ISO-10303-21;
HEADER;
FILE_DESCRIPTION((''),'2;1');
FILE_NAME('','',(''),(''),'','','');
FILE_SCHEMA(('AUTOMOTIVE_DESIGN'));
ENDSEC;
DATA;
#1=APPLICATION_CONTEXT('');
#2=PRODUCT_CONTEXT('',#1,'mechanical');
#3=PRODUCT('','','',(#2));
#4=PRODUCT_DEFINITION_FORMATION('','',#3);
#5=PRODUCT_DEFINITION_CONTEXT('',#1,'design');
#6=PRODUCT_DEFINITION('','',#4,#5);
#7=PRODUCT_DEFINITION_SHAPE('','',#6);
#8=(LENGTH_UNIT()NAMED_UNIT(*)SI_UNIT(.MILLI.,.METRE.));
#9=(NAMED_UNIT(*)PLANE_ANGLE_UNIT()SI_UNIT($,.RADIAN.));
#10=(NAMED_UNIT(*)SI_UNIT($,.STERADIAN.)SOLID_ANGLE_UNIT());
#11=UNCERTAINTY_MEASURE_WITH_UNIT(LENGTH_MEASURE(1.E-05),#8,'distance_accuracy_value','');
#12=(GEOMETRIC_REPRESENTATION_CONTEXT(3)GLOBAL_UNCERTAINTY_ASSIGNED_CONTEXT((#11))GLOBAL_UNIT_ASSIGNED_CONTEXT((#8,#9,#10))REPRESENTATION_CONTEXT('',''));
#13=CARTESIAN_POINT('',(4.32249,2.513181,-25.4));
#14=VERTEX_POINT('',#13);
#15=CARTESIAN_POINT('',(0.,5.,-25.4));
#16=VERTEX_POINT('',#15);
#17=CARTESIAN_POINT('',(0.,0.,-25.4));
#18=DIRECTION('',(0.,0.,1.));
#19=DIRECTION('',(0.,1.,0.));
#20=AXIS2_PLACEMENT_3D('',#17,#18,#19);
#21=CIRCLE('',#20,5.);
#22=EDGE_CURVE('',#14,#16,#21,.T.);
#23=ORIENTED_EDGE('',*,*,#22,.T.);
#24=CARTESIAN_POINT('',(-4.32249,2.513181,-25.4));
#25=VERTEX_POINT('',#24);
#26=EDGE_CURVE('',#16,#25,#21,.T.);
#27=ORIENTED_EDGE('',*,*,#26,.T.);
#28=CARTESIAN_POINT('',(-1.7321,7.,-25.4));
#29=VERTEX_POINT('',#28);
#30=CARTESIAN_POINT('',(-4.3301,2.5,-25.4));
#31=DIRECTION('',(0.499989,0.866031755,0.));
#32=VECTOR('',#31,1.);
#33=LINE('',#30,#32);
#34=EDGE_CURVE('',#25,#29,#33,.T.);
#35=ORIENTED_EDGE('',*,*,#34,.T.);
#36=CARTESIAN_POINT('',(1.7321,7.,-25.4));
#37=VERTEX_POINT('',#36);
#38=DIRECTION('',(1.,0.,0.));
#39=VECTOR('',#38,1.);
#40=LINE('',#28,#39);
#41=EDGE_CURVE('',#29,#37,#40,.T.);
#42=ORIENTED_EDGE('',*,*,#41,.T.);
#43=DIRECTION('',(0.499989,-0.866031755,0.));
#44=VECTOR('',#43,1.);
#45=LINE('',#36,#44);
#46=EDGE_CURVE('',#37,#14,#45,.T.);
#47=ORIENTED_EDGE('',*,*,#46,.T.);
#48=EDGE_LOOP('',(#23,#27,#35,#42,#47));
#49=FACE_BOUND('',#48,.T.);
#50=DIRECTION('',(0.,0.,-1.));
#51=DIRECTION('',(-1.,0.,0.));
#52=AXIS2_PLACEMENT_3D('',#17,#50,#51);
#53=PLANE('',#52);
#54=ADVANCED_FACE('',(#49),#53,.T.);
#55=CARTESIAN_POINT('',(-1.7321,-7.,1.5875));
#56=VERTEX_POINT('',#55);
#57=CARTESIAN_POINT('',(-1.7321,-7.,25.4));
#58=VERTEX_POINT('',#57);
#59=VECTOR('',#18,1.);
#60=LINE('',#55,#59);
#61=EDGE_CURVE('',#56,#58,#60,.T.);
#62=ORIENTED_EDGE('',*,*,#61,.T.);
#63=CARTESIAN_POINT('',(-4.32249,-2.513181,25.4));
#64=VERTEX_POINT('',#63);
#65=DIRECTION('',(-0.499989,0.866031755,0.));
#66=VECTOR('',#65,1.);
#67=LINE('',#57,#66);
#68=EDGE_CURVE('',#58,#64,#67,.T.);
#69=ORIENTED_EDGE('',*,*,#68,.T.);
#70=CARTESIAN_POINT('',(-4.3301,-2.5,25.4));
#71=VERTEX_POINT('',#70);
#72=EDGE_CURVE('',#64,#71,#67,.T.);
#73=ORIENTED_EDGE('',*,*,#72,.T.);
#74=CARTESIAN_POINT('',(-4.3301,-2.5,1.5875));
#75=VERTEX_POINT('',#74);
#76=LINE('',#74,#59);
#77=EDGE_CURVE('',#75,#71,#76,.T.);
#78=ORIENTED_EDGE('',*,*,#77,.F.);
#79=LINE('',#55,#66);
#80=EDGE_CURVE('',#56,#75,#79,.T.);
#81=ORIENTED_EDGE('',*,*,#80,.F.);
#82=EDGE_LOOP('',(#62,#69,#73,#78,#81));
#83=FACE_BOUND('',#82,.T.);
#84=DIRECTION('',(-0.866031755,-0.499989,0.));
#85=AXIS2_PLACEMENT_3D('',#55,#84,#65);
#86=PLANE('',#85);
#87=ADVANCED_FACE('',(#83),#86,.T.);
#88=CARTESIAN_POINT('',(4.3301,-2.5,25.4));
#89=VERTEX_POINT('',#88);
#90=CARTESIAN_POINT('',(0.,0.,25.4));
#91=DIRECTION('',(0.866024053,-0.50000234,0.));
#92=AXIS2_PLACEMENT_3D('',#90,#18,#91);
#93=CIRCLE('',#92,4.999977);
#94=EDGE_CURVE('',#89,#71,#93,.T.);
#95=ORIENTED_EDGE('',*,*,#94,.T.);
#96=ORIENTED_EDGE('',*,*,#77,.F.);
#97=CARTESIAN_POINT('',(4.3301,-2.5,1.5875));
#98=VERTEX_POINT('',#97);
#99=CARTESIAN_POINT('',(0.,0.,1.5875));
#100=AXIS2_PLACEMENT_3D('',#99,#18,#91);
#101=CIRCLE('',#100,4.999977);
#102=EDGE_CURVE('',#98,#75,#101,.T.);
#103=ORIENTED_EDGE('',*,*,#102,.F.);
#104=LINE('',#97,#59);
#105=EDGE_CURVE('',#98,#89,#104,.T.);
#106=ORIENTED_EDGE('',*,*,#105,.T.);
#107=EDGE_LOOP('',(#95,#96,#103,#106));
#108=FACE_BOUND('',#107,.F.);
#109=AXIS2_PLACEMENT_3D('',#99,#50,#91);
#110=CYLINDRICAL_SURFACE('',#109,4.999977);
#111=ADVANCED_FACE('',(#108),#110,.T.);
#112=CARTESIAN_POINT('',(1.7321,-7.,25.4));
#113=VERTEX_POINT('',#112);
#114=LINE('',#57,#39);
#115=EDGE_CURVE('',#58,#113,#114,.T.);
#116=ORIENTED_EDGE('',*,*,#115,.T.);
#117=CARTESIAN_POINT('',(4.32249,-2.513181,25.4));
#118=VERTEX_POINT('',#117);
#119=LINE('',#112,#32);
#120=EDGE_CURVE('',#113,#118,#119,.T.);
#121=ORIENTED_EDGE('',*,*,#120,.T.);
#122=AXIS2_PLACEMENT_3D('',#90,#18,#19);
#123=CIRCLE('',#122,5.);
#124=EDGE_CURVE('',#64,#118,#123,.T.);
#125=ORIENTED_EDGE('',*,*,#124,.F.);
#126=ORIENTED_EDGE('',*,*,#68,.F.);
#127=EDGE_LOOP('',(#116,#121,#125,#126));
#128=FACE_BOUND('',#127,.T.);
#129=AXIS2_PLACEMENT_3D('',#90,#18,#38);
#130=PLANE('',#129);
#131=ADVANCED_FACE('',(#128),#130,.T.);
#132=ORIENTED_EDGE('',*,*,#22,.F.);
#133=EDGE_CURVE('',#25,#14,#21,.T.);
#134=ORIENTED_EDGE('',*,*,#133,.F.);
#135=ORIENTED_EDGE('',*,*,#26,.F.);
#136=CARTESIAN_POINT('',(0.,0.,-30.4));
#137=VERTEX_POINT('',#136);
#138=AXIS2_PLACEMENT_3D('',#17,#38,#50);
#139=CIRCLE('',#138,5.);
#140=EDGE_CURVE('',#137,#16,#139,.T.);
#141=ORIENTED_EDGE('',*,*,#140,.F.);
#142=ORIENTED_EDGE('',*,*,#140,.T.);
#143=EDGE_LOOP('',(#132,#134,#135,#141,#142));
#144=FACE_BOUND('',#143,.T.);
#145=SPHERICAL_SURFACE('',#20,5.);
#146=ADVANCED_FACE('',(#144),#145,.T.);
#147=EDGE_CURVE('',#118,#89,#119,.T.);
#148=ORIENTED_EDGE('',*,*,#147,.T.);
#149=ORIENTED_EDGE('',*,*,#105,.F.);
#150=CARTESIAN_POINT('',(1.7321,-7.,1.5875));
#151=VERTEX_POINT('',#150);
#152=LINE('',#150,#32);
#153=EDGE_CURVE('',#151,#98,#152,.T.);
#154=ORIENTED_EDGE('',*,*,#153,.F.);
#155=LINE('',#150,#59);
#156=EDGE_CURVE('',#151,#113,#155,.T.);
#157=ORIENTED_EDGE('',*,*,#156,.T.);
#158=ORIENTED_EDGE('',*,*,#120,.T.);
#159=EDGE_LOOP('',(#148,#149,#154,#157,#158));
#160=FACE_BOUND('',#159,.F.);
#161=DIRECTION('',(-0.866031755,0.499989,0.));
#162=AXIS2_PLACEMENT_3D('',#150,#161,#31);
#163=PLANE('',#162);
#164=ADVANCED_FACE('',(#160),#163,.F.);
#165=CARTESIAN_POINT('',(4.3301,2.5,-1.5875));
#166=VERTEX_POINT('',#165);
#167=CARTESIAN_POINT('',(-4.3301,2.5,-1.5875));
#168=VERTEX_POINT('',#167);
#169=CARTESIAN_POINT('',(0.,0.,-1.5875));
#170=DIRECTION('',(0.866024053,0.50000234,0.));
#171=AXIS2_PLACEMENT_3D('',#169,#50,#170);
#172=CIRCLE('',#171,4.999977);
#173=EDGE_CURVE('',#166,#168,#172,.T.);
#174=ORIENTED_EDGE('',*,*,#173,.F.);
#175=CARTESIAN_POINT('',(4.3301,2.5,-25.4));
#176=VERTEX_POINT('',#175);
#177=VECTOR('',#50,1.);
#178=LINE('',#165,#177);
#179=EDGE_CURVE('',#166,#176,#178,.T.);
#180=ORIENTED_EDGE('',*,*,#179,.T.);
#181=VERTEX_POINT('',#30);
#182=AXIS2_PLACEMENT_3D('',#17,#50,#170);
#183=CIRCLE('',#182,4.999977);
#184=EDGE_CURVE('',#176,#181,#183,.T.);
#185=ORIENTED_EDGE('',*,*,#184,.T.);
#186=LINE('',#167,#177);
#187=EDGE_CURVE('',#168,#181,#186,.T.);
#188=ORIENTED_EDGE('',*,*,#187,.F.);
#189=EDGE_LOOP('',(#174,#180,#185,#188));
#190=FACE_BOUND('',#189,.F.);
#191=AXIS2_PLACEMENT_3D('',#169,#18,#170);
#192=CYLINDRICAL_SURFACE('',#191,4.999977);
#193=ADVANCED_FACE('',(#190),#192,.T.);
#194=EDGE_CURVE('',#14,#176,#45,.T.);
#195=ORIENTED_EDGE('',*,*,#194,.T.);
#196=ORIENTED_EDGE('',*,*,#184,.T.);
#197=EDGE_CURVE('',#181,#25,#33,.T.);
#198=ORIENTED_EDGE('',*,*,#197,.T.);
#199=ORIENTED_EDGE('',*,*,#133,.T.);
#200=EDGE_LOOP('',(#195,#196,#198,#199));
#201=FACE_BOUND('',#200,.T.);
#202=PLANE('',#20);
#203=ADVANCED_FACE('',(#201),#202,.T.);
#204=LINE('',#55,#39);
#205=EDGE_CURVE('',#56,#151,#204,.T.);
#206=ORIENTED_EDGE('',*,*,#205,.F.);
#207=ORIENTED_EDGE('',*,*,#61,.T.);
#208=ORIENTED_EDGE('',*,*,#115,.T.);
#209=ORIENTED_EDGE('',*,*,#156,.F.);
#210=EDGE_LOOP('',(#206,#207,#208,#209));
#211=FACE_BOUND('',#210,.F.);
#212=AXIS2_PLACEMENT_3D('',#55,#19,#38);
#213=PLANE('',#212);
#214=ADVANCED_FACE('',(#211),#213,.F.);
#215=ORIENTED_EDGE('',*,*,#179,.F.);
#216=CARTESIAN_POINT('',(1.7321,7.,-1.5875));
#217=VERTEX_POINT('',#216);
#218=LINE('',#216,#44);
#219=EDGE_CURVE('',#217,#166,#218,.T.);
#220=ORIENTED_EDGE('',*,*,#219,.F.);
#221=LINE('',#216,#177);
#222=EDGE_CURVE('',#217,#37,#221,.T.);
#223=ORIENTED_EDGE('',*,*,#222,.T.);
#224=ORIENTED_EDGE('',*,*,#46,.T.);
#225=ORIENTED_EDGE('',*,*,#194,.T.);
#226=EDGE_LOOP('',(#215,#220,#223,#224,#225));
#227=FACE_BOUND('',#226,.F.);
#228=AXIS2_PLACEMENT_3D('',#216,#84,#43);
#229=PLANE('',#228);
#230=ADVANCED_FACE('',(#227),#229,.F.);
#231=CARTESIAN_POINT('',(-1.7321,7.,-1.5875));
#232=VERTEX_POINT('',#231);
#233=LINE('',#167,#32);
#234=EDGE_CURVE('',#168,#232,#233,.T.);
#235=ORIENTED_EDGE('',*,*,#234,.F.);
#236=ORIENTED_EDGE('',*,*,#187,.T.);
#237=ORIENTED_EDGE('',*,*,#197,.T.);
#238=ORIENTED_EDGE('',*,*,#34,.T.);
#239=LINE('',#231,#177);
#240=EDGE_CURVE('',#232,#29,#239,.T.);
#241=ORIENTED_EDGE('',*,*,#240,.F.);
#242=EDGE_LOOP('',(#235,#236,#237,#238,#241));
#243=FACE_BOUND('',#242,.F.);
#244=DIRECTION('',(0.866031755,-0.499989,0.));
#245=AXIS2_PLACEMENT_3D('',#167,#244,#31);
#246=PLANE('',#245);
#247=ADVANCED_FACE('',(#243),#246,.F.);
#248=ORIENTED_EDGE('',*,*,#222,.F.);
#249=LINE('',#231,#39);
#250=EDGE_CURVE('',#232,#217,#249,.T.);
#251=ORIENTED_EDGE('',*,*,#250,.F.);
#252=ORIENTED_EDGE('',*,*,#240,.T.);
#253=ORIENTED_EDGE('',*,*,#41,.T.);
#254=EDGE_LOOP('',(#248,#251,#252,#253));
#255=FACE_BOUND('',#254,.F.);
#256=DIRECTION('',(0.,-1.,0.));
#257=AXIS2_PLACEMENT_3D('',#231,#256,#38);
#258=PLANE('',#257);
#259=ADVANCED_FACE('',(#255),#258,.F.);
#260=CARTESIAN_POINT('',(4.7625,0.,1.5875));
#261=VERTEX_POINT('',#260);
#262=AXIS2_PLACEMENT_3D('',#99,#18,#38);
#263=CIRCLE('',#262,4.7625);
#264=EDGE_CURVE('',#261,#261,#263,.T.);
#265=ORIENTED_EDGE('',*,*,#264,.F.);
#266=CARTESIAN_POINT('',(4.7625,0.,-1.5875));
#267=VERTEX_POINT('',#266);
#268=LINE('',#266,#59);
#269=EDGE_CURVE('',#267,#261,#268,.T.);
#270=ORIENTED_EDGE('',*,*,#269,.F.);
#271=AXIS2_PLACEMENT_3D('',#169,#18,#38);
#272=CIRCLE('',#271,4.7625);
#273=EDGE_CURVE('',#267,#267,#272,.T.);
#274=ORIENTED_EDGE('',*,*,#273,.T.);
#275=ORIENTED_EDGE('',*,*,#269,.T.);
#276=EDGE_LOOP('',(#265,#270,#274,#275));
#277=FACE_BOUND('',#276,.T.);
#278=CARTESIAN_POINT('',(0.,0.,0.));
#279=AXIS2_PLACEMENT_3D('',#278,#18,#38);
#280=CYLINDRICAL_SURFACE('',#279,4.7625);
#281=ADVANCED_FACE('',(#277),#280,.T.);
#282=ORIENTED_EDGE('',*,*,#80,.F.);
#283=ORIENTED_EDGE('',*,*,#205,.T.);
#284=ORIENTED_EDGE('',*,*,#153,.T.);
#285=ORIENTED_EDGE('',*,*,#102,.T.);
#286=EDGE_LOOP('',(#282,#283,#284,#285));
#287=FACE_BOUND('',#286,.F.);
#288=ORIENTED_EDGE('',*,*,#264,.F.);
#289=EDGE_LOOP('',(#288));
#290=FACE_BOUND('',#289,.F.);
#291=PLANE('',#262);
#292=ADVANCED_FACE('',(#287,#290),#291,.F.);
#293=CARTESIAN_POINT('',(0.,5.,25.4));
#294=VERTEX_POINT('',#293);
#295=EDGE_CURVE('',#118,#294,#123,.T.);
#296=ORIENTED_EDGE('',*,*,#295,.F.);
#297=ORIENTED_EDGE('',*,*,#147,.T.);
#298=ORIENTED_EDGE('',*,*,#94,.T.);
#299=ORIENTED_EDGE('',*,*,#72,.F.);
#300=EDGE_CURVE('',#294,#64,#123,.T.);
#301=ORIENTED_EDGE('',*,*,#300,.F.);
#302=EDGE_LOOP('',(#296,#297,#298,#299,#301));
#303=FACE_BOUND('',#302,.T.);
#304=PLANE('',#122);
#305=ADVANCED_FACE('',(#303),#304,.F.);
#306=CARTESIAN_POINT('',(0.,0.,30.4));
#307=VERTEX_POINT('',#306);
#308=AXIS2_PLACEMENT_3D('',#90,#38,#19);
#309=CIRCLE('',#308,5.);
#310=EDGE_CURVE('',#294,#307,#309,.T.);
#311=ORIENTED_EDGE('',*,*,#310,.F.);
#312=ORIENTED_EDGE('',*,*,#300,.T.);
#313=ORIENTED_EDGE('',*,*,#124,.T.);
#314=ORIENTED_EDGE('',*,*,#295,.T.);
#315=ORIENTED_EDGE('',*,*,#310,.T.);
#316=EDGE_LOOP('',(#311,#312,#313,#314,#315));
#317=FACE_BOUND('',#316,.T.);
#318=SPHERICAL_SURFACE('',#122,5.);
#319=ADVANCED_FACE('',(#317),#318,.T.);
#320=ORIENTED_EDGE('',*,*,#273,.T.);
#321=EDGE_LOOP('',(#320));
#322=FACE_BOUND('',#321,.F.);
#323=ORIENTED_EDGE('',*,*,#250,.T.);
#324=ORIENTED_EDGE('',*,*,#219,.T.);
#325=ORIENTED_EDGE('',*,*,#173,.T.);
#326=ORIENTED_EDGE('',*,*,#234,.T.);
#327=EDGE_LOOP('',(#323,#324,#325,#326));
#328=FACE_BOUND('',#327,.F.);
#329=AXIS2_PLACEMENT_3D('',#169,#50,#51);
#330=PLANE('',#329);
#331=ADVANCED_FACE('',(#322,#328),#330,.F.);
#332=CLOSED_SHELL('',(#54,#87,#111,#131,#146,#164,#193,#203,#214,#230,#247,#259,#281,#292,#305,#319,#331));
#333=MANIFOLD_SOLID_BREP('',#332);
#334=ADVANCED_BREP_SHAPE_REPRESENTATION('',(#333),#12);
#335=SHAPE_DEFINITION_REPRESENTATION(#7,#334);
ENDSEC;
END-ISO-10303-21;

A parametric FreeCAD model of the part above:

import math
import FreeCAD as App
import Part
import Sketcher
from FreeCAD import Vector
Q = App.Units.Quantity

doc = App.newDocument("Part")
body = doc.addObject("PartDesign::Body", "Body")

# Sketch on XY plane
sketch1 = body.newObject("Sketcher::SketchObject", "Sketch")
sketch1.AttachmentSupport = (doc.getObject("XY_Plane"), [""])
sketch1.MapMode = "FlatFace"
sketch1.addGeometry(Part.Circle(Vector(0, 0, 0), Vector(0, 0, 1), 4.7625), False)
sketch1.addConstraint([
    Sketcher.Constraint("Coincident", 0, 3, -1, 1),
    Sketcher.Constraint("Diameter", 0, Q("0.375 in")),
])
pad1 = body.newObject("PartDesign::Pad", "Pad")
pad1.Profile = sketch1
pad1.Length = Q("0.125 in")
pad1.Midplane = True

# Sketch on XY plane
sketch2 = body.newObject("Sketcher::SketchObject", "Sketch001")
sketch2.AttachmentSupport = (doc.getObject("XY_Plane"), [""])
sketch2.MapMode = "FlatFace"
sketch2.AttachmentOffset = App.Placement(Vector(0, 0, 0.0625 * 25.4), App.Rotation())
sketch2.addGeometry([
    Part.LineSegment(Vector(-4.3301, -2.5, 0), Vector(-1.7321, -7, 0)),
    Part.LineSegment(Vector(-1.7321, -7, 0), Vector(1.7321, -7, 0)),
    Part.LineSegment(Vector(1.7321, -7, 0), Vector(4.3301, -2.5, 0)),
    Part.ArcOfCircle(Part.Circle(Vector(0, 0, 0), Vector(0, 0, 1), 4.999977), math.radians(-30.000155), math.radians(210.000155)),
], False)
sketch2.addConstraint([
    Sketcher.Constraint("Coincident", 0, 2, 1, 1),
    Sketcher.Constraint("Coincident", 1, 2, 2, 1),
    Sketcher.Constraint("Tangent", 2, 2, 3, 1),
    Sketcher.Constraint("Tangent", 3, 2, 0, 1),
    Sketcher.Constraint("Horizontal", 1),
    Sketcher.Constraint("Coincident", 3, 3, -1, 1),
    Sketcher.Constraint("Horizontal", 2, 2, 3, 2),
    Sketcher.Constraint("Radius", 3, Q("5 mm")),
    Sketcher.Constraint("Angle", 0, Q("-60.0007 deg")),
    Sketcher.Constraint("DistanceX", 1, 1, 1, 2, Q("3.4642 mm")),
])
pad2 = body.newObject("PartDesign::Pad", "Pad001")
pad2.Profile = sketch2
pad2.Length = Q("0.9375 in")

# Sketch on XY plane
sketch3 = body.newObject("Sketcher::SketchObject", "Sketch002")
sketch3.AttachmentSupport = (doc.getObject("XY_Plane"), [""])
sketch3.MapMode = "FlatFace"
sketch3.AttachmentOffset = App.Placement(Vector(0, 0, -0.0625 * 25.4), App.Rotation())
sketch3.addGeometry([
    Part.ArcOfCircle(Part.Circle(Vector(0, 0, 0), Vector(0, 0, 1), 4.999977), math.radians(149.999845), math.radians(390.000155)),
    Part.LineSegment(Vector(-4.3301, 2.5, 0), Vector(-1.7321, 7, 0)),
    Part.LineSegment(Vector(-1.7321, 7, 0), Vector(1.7321, 7, 0)),
    Part.LineSegment(Vector(1.7321, 7, 0), Vector(4.3301, 2.5, 0)),
], False)
sketch3.addConstraint([
    Sketcher.Constraint("Tangent", 0, 1, 1, 1),
    Sketcher.Constraint("Coincident", 1, 2, 2, 1),
    Sketcher.Constraint("Coincident", 2, 2, 3, 1),
    Sketcher.Constraint("Tangent", 3, 2, 0, 2),
    Sketcher.Constraint("Horizontal", 2),
    Sketcher.Constraint("Coincident", 0, 3, -1, 1),
    Sketcher.Constraint("Horizontal", 0, 1, 3, 2),
    Sketcher.Constraint("Radius", 0, Q("5 mm")),
    Sketcher.Constraint("Angle", 1, Q("60.0007 deg")),
    Sketcher.Constraint("DistanceX", 2, 1, 2, 2, Q("3.4642 mm")),
])
pad3 = body.newObject("PartDesign::Pad", "Pad002")
pad3.Profile = sketch3
pad3.Length = Q("0.9375 in")
pad3.Reversed = True

# Sketch on YZ plane
sketch4 = body.newObject("Sketcher::SketchObject", "Sketch003")
sketch4.AttachmentSupport = (doc.getObject("YZ_Plane"), [""])
sketch4.MapMode = "FlatFace"
sketch4.addGeometry([
    Part.LineSegment(Vector(0, 30.4, 0), Vector(0, 25.4, 0)),  # 0
    Part.LineSegment(Vector(0, 25.4, 0), Vector(5, 25.4, 0)),  # 1
    Part.ArcOfCircle(Part.Circle(Vector(0, 25.4, 0), Vector(0, 0, 1), 5), math.radians(0), math.radians(90)),  # 2
    Part.ArcOfCircle(Part.Circle(Vector(0, -25.4, 0), Vector(0, 0, 1), 5), math.radians(-90), math.radians(0)),  # 3
    Part.LineSegment(Vector(5, -25.4, 0), Vector(0, -25.4, 0)),  # 4
    Part.LineSegment(Vector(0, -25.4, 0), Vector(0, -30.4, 0)),  # 5
], False)
sketch4.addConstraint([
    Sketcher.Constraint("Coincident", 0, 2, 1, 1),
    Sketcher.Constraint("Coincident", 1, 2, 2, 1),
    Sketcher.Constraint("Coincident", 2, 2, 0, 1),
    Sketcher.Constraint("Coincident", 3, 2, 4, 1),
    Sketcher.Constraint("Coincident", 4, 2, 5, 1),
    Sketcher.Constraint("Coincident", 5, 2, 3, 1),
    Sketcher.Constraint("Vertical", 0),
    Sketcher.Constraint("Horizontal", 1),
    Sketcher.Constraint("Horizontal", 4),
    Sketcher.Constraint("Vertical", 5),
    Sketcher.Constraint("Coincident", 0, 2, 2, 3),
    Sketcher.Constraint("Coincident", 4, 2, 3, 3),
    Sketcher.Constraint("Equal", 2, 3),
    Sketcher.Constraint("Symmetric", 2, 3, 3, 3, -1, 1),
    Sketcher.Constraint("PointOnObject", 2, 3, -2),
    Sketcher.Constraint("DistanceY", -1, 1, 2, 3, Q("1 in")),
    Sketcher.Constraint("Radius", 2, Q("5 mm")),
])
revolution = body.newObject("PartDesign::Revolution", "Revolution")
revolution.Profile = sketch4
revolution.ReferenceAxis = (sketch4, ["V_Axis"])
revolution.Angle = 360

doc.recompute()
